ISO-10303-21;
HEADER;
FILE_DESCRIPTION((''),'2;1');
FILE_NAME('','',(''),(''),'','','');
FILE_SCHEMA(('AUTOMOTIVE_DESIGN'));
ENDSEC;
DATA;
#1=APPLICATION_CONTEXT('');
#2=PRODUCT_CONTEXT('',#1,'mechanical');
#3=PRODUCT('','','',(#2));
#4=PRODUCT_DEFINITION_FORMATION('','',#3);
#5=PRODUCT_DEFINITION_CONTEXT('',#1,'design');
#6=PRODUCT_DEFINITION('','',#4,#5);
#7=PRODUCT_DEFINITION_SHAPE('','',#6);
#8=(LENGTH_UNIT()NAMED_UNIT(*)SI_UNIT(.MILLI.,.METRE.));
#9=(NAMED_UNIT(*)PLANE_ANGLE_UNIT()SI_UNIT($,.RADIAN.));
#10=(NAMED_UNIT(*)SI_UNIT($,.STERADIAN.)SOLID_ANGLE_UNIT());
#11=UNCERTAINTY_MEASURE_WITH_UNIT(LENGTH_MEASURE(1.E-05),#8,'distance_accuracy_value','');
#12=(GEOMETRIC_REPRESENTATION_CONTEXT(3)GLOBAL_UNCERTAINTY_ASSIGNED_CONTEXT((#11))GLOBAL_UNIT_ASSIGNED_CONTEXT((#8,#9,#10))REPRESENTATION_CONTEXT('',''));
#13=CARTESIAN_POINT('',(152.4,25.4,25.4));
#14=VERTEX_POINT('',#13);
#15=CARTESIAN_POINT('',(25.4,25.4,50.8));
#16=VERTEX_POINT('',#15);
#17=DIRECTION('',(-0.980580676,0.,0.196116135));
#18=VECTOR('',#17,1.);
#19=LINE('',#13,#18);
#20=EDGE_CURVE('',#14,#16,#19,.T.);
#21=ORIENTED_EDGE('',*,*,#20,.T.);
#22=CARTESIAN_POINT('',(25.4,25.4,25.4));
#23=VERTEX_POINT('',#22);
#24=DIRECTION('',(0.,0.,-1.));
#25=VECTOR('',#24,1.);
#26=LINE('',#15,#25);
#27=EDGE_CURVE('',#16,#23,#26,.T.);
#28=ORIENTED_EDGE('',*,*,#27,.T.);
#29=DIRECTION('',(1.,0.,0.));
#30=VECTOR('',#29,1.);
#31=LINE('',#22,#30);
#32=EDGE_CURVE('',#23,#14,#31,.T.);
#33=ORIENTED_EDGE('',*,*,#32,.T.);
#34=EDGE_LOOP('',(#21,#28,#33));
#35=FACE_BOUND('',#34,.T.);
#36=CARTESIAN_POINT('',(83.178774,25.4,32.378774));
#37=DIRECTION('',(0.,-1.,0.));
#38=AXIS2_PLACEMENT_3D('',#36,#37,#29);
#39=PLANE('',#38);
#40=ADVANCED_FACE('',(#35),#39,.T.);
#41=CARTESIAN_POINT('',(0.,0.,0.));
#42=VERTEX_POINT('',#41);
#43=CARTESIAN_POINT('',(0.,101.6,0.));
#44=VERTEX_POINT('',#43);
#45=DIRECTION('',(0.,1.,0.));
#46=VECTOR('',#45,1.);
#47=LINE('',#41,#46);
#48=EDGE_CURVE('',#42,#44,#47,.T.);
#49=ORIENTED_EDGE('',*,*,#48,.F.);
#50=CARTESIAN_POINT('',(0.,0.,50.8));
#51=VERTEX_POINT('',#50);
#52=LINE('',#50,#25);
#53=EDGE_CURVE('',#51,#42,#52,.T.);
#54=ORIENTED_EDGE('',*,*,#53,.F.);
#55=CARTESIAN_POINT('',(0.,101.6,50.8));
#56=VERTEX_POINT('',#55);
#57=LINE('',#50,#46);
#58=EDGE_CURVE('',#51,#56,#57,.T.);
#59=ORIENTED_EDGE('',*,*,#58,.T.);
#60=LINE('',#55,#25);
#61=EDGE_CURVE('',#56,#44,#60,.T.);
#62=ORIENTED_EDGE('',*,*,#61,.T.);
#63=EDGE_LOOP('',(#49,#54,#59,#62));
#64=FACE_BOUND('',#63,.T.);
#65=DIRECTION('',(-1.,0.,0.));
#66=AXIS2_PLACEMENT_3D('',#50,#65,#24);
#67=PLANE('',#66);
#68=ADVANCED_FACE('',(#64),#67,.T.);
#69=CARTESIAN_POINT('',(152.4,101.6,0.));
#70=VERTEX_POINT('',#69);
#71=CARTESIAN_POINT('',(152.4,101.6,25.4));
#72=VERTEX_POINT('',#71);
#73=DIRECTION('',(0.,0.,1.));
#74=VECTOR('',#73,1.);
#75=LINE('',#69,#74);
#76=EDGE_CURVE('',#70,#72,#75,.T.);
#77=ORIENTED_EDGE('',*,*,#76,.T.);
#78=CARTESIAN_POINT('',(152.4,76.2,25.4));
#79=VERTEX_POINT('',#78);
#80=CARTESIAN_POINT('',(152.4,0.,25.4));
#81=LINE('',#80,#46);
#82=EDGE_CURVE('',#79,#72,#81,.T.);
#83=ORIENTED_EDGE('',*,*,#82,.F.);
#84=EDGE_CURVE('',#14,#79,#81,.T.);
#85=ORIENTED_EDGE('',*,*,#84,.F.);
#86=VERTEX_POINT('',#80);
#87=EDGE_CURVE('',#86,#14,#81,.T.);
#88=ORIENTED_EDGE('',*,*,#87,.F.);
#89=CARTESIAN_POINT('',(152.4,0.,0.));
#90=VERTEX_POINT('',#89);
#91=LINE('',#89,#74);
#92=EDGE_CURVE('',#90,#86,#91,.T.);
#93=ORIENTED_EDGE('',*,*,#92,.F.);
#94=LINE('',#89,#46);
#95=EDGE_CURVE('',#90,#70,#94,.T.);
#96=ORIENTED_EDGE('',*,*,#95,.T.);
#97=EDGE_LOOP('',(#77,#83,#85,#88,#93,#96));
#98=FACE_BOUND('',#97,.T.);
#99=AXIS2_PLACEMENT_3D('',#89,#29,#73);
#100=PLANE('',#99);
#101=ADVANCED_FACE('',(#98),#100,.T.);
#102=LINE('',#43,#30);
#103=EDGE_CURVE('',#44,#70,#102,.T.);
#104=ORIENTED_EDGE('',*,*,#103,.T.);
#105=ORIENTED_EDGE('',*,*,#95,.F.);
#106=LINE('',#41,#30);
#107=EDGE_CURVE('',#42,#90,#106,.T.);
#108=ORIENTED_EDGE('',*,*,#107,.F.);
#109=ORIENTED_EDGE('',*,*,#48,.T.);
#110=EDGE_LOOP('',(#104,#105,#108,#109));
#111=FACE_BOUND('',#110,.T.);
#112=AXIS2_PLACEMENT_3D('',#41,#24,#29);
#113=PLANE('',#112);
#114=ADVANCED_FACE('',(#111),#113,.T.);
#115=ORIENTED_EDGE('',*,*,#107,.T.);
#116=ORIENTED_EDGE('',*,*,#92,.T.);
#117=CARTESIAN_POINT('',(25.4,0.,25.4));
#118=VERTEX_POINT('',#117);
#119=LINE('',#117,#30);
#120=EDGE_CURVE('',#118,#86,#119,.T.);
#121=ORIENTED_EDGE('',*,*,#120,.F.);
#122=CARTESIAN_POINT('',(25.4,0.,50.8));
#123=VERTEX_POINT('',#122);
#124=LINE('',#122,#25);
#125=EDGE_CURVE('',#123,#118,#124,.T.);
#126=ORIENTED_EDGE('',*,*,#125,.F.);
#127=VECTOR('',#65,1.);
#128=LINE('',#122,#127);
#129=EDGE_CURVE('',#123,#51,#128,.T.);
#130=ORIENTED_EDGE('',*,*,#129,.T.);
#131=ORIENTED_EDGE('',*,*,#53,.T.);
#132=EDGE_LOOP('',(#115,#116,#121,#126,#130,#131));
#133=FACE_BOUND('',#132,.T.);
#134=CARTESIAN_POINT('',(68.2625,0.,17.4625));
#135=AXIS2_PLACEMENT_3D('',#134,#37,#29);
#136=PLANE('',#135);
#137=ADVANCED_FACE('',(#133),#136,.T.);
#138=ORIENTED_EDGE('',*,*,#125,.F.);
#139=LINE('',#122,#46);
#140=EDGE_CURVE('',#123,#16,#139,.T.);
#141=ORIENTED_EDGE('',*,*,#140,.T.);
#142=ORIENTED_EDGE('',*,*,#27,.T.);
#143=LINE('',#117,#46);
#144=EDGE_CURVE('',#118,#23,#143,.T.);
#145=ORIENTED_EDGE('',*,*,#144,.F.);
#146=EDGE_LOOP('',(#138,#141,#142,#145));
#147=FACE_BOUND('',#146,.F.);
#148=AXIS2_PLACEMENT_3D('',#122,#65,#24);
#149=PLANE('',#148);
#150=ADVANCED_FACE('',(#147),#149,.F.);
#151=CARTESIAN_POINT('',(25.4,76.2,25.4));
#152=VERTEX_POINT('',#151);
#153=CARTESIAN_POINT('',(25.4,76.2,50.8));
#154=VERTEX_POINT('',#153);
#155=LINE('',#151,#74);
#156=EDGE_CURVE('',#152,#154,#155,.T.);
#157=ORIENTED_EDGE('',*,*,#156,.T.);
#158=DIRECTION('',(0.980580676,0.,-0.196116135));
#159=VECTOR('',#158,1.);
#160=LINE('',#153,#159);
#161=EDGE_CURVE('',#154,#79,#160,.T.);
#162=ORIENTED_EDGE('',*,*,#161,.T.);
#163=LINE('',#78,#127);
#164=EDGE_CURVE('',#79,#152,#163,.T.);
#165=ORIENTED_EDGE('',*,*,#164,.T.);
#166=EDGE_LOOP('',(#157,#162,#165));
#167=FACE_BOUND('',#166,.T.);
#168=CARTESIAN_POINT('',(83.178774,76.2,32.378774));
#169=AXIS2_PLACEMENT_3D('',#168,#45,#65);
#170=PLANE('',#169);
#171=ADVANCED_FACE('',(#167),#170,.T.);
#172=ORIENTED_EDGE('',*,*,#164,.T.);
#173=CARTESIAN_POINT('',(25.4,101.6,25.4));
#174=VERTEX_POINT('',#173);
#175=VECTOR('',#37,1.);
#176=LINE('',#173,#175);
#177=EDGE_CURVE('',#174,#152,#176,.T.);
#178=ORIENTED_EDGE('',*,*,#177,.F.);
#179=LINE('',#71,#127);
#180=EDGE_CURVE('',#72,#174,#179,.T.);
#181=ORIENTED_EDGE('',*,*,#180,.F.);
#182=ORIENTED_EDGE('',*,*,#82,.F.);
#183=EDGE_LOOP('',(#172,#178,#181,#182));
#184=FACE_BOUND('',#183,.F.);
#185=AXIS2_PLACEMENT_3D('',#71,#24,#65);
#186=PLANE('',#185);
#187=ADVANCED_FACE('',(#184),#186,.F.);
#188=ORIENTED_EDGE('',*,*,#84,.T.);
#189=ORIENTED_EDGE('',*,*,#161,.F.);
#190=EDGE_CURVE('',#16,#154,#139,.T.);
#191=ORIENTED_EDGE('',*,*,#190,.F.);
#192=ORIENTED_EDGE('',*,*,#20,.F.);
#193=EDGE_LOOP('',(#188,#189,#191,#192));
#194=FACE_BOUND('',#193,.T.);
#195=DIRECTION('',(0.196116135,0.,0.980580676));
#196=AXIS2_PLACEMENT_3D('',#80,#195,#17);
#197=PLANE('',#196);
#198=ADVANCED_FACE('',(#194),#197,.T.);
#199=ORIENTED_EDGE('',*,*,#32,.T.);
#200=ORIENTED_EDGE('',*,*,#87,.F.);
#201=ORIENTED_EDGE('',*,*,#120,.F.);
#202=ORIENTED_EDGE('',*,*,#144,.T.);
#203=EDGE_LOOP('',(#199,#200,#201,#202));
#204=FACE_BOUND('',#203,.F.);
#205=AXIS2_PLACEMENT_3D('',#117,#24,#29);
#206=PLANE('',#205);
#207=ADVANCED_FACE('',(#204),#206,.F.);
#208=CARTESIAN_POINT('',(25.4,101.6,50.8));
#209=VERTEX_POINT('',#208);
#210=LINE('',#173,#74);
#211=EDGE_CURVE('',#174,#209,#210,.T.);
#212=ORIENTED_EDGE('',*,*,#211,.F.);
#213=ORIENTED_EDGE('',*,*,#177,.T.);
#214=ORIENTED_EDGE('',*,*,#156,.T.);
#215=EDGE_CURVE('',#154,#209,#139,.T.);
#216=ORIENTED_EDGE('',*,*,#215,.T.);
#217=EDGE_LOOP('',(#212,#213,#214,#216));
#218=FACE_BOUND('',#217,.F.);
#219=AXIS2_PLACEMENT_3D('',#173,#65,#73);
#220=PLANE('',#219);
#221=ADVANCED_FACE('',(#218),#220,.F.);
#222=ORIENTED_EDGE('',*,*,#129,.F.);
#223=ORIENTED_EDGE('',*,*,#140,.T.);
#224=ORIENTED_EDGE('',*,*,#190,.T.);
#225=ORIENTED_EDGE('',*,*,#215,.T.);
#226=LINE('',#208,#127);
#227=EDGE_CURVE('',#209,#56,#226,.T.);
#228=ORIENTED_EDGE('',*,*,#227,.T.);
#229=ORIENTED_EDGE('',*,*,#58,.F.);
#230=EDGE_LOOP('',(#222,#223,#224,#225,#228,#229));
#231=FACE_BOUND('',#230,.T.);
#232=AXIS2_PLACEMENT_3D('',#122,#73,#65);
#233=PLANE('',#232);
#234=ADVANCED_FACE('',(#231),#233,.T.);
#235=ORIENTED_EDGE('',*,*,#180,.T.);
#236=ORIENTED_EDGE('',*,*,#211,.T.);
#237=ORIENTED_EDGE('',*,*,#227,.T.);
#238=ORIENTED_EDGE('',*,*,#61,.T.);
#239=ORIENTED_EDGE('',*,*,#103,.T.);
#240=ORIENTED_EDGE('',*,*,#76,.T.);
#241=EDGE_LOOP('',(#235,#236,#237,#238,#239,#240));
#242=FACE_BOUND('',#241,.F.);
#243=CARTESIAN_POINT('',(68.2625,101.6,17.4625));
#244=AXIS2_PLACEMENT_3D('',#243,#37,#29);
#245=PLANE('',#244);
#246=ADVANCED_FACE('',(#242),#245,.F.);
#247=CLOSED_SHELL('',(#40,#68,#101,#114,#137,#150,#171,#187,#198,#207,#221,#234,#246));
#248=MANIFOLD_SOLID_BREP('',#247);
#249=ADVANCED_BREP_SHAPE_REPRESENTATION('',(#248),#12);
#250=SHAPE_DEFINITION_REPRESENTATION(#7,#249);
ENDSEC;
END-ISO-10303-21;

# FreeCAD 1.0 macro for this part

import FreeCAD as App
import Part
import Sketcher
from FreeCAD import Vector
Q = App.Units.Quantity

doc = App.newDocument("Part")
body = doc.addObject("PartDesign::Body", "Body")

# Sketch on XZ plane
sketch1 = body.newObject("Sketcher::SketchObject", "Sketch")
sketch1.AttachmentSupport = (doc.getObject("XZ_Plane"), [""])
sketch1.MapMode = "FlatFace"
sketch1.addGeometry(Part.LineSegment(Vector(0, 51, 0), Vector(0, 0, 0)), False)
sketch1.addGeometry(Part.LineSegment(Vector(0, 0, 0), Vector(152, 0, 0)), False)
sketch1.addGeometry(Part.LineSegment(Vector(152, 0, 0), Vector(152, 25, 0)), False)
sketch1.addGeometry(Part.LineSegment(Vector(152, 25, 0), Vector(25, 51, 0)), False)
sketch1.addGeometry(Part.LineSegment(Vector(25, 51, 0), Vector(0, 51, 0)), False)
sketch1.addConstraint(Sketcher.Constraint("Coincident", 0, 2, 1, 1))
sketch1.addConstraint(Sketcher.Constraint("Coincident", 1, 2, 2, 1))
sketch1.addConstraint(Sketcher.Constraint("Coincident", 2, 2, 3, 1))
sketch1.addConstraint(Sketcher.Constraint("Coincident", 3, 2, 4, 1))
sketch1.addConstraint(Sketcher.Constraint("Coincident", 4, 2, 0, 1))
sketch1.addConstraint(Sketcher.Constraint("Vertical", 0))
sketch1.addConstraint(Sketcher.Constraint("Horizontal", 1))
sketch1.addConstraint(Sketcher.Constraint("Vertical", 2))
sketch1.addConstraint(Sketcher.Constraint("Horizontal", 4))
sketch1.addConstraint(Sketcher.Constraint("Coincident", 0, 2, -1, 1))
sketch1.addConstraint(Sketcher.Constraint("Equal", 4, 2))
sketch1.addConstraint(Sketcher.Constraint("DistanceX", 1, 1, 1, 2, Q("6 in")))
sketch1.addConstraint(Sketcher.Constraint("DistanceX", 4, 2, 4, 1, Q("1 in")))
sketch1.addConstraint(Sketcher.Constraint("DistanceY", 0, 2, 0, 1, Q("2 in")))
pad1 = body.newObject("PartDesign::Pad", "Pad")
pad1.Profile = sketch1
pad1.Length = Q("4 in")
pad1.Reversed = True

# Sketch on XZ plane
sketch2 = body.newObject("Sketcher::SketchObject", "Sketch001")
sketch2.AttachmentSupport = (doc.getObject("XZ_Plane"), [""])
sketch2.MapMode = "FlatFace"
sketch2.addGeometry(Part.LineSegment(Vector(152, 25, 0), Vector(25, 51, 0)), False)
sketch2.addGeometry(Part.LineSegment(Vector(25, 51, 0), Vector(25, 25, 0)), False)
sketch2.addGeometry(Part.LineSegment(Vector(25, 25, 0), Vector(152, 25, 0)), False)
sketch2.addConstraint(Sketcher.Constraint("Coincident", 0, 2, 1, 1))
sketch2.addConstraint(Sketcher.Constraint("Coincident", 1, 2, 2, 1))
sketch2.addConstraint(Sketcher.Constraint("Coincident", 2, 2, 0, 1))
sketch2.addConstraint(Sketcher.Constraint("Vertical", 1))
sketch2.addConstraint(Sketcher.Constraint("Horizontal", 2))
sketch2.addConstraint(Sketcher.Constraint("DistanceX", 2, 1, 2, 2, Q("5 in")))
sketch2.addConstraint(Sketcher.Constraint("DistanceY", 1, 2, 1, 1, Q("1 in")))
sketch2.addConstraint(Sketcher.Constraint("DistanceX", -1, 1, 0, 2, Q("1 in")))
sketch2.addConstraint(Sketcher.Constraint("DistanceY", -1, 1, 0, 2, Q("2 in")))
pocket1 = body.newObject("PartDesign::Pocket", "Pocket")
pocket1.Profile = sketch2
pocket1.Length = Q("1 in")

# Sketch on XZ plane
sketch3 = body.newObject("Sketcher::SketchObject", "Sketch002")
sketch3.AttachmentSupport = (doc.getObject("XZ_Plane"), [""])
sketch3.MapMode = "FlatFace"
sketch3.AttachmentOffset = App.Placement(Vector(0, 0, -4 * 25.4), App.Rotation())
sketch3.addGeometry(Part.LineSegment(Vector(25, 25, 0), Vector(25, 51, 0)), False)
sketch3.addGeometry(Part.LineSegment(Vector(25, 51, 0), Vector(152, 25, 0)), False)
sketch3.addGeometry(Part.LineSegment(Vector(152, 25, 0), Vector(25, 25, 0)), False)
sketch3.addConstraint(Sketcher.Constraint("Coincident", 0, 2, 1, 1))
sketch3.addConstraint(Sketcher.Constraint("Coincident", 1, 2, 2, 1))
sketch3.addConstraint(Sketcher.Constraint("Coincident", 2, 2, 0, 1))
sketch3.addConstraint(Sketcher.Constraint("Vertical", 0))
sketch3.addConstraint(Sketcher.Constraint("Horizontal", 2))
sketch3.addConstraint(Sketcher.Constraint("DistanceX", 2, 2, 2, 1, Q("5 in")))
sketch3.addConstraint(Sketcher.Constraint("DistanceY", 0, 1, 0, 2, Q("1 in")))
sketch3.addConstraint(Sketcher.Constraint("DistanceX", -1, 1, 0, 2, Q("1 in")))
sketch3.addConstraint(Sketcher.Constraint("DistanceY", -1, 1, 0, 2, Q("2 in")))
pocket2 = body.newObject("PartDesign::Pocket", "Pocket001")
pocket2.Profile = sketch3
pocket2.Length = Q("1 in")
pocket2.Reversed = True

doc.recompute()
